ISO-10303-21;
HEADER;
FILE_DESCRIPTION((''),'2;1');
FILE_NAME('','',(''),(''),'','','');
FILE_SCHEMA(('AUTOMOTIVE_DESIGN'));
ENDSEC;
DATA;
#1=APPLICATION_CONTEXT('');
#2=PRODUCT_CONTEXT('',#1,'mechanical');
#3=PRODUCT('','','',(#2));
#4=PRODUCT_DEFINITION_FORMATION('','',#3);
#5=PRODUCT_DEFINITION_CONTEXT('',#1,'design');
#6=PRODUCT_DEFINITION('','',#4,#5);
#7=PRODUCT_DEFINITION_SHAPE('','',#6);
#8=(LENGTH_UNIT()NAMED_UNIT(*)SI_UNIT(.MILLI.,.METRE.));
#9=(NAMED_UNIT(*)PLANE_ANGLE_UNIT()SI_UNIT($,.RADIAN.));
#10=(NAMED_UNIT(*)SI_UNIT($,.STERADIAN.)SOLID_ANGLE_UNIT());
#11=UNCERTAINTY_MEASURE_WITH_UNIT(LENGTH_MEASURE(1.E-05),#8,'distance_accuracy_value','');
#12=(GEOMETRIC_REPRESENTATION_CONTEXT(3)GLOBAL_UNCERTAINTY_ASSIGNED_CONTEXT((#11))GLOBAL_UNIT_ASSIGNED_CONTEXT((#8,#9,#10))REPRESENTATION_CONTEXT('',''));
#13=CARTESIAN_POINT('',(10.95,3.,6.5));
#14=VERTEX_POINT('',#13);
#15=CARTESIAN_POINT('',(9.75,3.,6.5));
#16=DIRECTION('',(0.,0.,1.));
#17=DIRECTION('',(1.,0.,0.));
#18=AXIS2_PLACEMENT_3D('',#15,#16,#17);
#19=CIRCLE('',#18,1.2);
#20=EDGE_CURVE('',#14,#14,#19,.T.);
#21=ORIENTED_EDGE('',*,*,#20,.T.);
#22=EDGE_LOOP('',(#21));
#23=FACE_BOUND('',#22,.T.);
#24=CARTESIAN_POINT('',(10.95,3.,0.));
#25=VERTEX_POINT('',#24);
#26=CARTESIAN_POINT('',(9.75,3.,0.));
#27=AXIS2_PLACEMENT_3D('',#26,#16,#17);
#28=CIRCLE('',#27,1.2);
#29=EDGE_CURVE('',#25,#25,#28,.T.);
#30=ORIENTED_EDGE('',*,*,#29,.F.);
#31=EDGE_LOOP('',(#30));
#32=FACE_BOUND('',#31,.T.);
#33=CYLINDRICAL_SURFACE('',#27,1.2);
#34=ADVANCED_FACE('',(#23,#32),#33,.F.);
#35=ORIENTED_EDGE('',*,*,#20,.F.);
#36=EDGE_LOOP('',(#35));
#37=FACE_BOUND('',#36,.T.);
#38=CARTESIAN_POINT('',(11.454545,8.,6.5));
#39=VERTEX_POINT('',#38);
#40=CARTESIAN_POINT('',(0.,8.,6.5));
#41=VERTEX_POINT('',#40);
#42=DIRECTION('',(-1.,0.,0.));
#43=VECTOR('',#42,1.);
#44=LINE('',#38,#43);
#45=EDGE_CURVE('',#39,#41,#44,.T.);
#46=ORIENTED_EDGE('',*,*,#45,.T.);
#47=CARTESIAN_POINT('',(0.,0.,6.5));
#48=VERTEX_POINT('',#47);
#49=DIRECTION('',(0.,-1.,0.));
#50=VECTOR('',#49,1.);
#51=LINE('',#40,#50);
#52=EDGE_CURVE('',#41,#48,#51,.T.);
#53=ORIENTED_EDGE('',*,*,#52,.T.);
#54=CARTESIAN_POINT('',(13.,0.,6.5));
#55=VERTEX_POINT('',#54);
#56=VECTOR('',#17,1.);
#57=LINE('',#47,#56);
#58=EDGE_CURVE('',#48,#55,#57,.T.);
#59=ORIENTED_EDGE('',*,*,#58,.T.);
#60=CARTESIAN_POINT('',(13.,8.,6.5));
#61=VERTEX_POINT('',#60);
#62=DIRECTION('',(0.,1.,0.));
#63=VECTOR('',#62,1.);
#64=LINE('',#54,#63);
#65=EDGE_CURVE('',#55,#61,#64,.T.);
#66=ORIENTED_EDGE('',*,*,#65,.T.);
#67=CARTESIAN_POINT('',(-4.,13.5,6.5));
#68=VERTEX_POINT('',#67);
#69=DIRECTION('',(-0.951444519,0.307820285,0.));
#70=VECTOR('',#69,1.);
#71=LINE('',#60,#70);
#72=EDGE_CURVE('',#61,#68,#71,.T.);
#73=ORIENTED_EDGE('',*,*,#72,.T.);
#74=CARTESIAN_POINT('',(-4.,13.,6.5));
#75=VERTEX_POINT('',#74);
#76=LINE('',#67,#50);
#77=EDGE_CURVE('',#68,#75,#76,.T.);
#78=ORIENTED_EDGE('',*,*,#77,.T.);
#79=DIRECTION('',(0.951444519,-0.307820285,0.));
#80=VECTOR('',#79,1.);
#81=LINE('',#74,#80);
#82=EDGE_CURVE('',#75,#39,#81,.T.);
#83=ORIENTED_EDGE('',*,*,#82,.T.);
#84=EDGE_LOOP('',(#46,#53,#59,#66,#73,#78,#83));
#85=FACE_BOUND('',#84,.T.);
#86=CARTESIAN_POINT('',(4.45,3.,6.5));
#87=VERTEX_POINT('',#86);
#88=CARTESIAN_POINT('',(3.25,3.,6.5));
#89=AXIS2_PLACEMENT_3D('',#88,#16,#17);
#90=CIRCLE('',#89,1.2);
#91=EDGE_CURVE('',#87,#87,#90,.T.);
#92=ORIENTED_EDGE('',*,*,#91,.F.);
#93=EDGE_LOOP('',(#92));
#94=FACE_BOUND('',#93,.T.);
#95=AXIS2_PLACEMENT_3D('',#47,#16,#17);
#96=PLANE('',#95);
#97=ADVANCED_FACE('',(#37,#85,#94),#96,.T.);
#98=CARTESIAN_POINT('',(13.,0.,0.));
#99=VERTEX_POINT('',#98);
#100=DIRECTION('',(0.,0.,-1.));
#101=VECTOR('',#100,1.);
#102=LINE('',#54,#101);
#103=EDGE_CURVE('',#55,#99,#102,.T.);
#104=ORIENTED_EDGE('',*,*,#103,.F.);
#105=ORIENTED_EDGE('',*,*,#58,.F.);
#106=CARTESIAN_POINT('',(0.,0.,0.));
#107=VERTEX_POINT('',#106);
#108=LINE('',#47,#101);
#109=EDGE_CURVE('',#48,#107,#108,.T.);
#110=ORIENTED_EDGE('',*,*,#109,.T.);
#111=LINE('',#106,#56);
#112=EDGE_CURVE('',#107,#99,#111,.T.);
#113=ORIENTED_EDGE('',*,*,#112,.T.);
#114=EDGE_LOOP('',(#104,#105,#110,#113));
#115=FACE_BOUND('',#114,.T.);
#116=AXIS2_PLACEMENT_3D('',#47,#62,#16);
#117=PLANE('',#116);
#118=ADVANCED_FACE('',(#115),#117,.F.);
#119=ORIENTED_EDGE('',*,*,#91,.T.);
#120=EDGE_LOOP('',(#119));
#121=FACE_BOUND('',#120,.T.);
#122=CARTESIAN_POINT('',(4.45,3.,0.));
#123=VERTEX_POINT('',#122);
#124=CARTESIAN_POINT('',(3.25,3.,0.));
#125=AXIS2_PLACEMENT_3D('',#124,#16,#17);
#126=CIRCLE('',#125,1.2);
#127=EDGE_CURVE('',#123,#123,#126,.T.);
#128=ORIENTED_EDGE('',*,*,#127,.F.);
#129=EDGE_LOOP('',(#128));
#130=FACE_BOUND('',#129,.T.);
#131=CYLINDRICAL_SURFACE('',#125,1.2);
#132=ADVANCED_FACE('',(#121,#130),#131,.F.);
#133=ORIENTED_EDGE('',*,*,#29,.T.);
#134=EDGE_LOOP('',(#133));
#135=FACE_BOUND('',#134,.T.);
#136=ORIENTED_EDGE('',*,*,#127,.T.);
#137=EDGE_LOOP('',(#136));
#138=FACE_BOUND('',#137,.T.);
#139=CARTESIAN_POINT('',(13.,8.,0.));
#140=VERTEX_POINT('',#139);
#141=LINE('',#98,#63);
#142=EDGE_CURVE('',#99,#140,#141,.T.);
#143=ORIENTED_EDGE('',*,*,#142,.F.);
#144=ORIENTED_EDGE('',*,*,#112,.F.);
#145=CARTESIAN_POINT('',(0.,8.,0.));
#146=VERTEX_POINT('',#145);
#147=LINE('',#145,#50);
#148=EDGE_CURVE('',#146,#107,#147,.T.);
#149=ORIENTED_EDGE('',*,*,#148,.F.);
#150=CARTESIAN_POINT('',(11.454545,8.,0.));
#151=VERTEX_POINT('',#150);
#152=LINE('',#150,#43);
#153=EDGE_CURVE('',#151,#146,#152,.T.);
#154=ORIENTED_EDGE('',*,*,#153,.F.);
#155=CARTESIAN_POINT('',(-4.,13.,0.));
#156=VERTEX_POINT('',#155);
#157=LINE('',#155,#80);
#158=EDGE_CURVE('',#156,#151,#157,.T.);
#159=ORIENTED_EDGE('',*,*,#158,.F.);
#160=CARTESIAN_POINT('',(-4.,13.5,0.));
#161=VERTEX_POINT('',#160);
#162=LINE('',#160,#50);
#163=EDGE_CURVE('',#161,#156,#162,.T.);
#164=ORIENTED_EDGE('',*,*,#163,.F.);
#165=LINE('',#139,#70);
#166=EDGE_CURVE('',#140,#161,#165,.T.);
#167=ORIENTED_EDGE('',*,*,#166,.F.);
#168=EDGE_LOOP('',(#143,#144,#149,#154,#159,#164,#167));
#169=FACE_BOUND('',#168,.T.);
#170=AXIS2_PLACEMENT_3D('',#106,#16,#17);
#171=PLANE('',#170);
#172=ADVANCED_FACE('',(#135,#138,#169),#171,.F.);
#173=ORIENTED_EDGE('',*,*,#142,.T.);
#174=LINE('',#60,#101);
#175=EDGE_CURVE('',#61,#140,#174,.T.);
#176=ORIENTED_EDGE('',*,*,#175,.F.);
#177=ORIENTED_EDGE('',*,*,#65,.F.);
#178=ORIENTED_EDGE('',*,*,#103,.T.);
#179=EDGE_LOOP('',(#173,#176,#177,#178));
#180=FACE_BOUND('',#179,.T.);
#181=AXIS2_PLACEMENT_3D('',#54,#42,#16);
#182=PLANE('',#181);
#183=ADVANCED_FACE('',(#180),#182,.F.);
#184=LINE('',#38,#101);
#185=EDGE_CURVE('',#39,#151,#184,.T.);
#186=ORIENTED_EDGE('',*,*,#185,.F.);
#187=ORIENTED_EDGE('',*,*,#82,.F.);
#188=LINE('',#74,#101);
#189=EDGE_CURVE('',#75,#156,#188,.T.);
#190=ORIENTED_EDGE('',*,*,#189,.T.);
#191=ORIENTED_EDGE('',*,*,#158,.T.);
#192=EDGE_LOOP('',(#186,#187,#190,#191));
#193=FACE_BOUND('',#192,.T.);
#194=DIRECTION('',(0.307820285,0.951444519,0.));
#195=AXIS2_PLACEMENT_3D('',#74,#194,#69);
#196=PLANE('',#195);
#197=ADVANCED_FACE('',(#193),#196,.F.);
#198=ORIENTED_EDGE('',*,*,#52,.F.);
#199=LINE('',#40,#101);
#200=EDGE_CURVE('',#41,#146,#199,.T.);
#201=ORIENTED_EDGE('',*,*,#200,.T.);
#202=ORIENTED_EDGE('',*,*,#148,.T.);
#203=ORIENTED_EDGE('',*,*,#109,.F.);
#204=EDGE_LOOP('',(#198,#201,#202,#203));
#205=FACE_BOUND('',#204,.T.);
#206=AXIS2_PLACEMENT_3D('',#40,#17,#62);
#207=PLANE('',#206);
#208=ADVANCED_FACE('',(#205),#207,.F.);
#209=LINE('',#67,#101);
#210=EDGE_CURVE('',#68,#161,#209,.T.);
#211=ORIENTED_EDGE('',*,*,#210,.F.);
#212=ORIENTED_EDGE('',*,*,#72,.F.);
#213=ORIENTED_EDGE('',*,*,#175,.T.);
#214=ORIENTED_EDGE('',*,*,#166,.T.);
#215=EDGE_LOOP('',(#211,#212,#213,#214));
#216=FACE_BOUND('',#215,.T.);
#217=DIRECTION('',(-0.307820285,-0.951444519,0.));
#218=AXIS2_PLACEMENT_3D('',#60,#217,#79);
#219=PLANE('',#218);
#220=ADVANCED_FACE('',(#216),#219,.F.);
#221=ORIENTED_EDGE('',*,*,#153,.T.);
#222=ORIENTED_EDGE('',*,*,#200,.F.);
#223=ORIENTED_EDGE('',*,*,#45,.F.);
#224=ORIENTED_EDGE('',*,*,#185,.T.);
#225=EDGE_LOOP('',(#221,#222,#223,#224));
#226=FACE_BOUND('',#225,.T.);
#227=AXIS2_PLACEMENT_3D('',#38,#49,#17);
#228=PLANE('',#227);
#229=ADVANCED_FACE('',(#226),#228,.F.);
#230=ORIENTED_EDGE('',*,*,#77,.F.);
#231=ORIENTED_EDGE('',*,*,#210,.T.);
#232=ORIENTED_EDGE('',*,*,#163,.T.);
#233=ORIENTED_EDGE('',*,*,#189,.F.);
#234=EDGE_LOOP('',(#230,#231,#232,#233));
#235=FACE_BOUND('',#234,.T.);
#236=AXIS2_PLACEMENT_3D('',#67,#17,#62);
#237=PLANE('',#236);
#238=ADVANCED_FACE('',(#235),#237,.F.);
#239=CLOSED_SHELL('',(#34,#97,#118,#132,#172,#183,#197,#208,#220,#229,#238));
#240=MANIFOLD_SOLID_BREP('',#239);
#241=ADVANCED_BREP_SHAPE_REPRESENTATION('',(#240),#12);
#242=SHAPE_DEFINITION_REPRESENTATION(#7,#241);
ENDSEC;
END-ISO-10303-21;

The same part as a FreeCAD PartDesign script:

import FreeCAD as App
import Part
import Sketcher

V = App.Vector
Q = App.Units.Quantity

doc = App.newDocument("Part")
body = doc.addObject("PartDesign::Body", "Body")

# Sketch on XY plane
sketch1 = body.newObject("Sketcher::SketchObject", "Sketch")
sketch1.AttachmentSupport = (doc.getObject("XY_Plane"), [""])
sketch1.MapMode = "FlatFace"
sketch1.addGeometry([
    Part.LineSegment(V(0, 0, 0), V(13, 0, 0)),  # 0
    Part.LineSegment(V(13, 0, 0), V(13, 8, 0)),  # 1
    Part.LineSegment(V(13, 8, 0), V(-4, 13.5, 0)),  # 2
    Part.LineSegment(V(-4, 13.5, 0), V(-4, 13, 0)),  # 3
    Part.LineSegment(V(-4, 13, 0), V(11.5, 8, 0)),  # 4
    Part.LineSegment(V(11.5, 8, 0), V(0, 8, 0)),  # 5
    Part.LineSegment(V(0, 8, 0), V(0, 0, 0)),  # 6
], False)
sketch1.addConstraint([
    Sketcher.Constraint("Coincident", 0, 2, 1, 1),
    Sketcher.Constraint("Coincident", 1, 2, 2, 1),
    Sketcher.Constraint("Coincident", 2, 2, 3, 1),
    Sketcher.Constraint("Coincident", 3, 2, 4, 1),
    Sketcher.Constraint("Coincident", 4, 2, 5, 1),
    Sketcher.Constraint("Coincident", 5, 2, 6, 1),
    Sketcher.Constraint("Coincident", 6, 2, 0, 1),
    Sketcher.Constraint("Horizontal", 0),
    Sketcher.Constraint("Vertical", 1),
    Sketcher.Constraint("Vertical", 3),
    Sketcher.Constraint("Horizontal", 5),
    Sketcher.Constraint("Vertical", 6),
    Sketcher.Constraint("Coincident", 6, 2, -1, 1),
    Sketcher.Constraint("Parallel", 2, 4),
    Sketcher.Constraint("Horizontal", 1, 2, 4, 2),
    Sketcher.Constraint("DistanceX", 0, 1, 0, 2, Q("13 mm")),
    Sketcher.Constraint("DistanceY", 1, 1, 1, 2, Q("8 mm")),
    Sketcher.Constraint("DistanceY", 3, 2, 3, 1, Q("0.5 mm")),
    Sketcher.Constraint("DistanceX", 2, 2, -1, 1, Q("4 mm")),
    Sketcher.Constraint("DistanceY", -1, 1, 3, 2, Q("13 mm")),
])
pad1 = body.newObject("PartDesign::Pad", "Pad")
pad1.Profile = sketch1
pad1.Length = 6.5

# Sketch on XY plane
sketch2 = body.newObject("Sketcher::SketchObject", "Sketch001")
sketch2.AttachmentSupport = (doc.getObject("XY_Plane"), [""])
sketch2.MapMode = "FlatFace"
sketch2.AttachmentOffset = App.Placement(V(0, 0, 6.5), App.Rotation())
sketch2.addGeometry([
    Part.Circle(V(3.2, 3, 0), V(0, 0, 1), 1.2),
    Part.Circle(V(9.8, 3, 0), V(0, 0, 1), 1.2),
], False)
sketch2.addConstraint([
    Sketcher.Constraint("Equal", 0, 1),
    Sketcher.Constraint("Horizontal", 0, 3, 1, 3),
    Sketcher.Constraint("Diameter", 0, Q("2.4 mm")),
    Sketcher.Constraint("DistanceY", -1, 1, 0, 3, Q("3 mm")),
    Sketcher.Constraint("DistanceX", 0, 3, 1, 3, Q("6.5 mm")),
    Sketcher.Constraint("DistanceX", -1, 1, 0, 3, Q("3.25 mm")),
])
pocket1 = body.newObject("PartDesign::Pocket", "Pocket")
pocket1.Profile = sketch2
pocket1.Type = "ThroughAll"

doc.recompute()
